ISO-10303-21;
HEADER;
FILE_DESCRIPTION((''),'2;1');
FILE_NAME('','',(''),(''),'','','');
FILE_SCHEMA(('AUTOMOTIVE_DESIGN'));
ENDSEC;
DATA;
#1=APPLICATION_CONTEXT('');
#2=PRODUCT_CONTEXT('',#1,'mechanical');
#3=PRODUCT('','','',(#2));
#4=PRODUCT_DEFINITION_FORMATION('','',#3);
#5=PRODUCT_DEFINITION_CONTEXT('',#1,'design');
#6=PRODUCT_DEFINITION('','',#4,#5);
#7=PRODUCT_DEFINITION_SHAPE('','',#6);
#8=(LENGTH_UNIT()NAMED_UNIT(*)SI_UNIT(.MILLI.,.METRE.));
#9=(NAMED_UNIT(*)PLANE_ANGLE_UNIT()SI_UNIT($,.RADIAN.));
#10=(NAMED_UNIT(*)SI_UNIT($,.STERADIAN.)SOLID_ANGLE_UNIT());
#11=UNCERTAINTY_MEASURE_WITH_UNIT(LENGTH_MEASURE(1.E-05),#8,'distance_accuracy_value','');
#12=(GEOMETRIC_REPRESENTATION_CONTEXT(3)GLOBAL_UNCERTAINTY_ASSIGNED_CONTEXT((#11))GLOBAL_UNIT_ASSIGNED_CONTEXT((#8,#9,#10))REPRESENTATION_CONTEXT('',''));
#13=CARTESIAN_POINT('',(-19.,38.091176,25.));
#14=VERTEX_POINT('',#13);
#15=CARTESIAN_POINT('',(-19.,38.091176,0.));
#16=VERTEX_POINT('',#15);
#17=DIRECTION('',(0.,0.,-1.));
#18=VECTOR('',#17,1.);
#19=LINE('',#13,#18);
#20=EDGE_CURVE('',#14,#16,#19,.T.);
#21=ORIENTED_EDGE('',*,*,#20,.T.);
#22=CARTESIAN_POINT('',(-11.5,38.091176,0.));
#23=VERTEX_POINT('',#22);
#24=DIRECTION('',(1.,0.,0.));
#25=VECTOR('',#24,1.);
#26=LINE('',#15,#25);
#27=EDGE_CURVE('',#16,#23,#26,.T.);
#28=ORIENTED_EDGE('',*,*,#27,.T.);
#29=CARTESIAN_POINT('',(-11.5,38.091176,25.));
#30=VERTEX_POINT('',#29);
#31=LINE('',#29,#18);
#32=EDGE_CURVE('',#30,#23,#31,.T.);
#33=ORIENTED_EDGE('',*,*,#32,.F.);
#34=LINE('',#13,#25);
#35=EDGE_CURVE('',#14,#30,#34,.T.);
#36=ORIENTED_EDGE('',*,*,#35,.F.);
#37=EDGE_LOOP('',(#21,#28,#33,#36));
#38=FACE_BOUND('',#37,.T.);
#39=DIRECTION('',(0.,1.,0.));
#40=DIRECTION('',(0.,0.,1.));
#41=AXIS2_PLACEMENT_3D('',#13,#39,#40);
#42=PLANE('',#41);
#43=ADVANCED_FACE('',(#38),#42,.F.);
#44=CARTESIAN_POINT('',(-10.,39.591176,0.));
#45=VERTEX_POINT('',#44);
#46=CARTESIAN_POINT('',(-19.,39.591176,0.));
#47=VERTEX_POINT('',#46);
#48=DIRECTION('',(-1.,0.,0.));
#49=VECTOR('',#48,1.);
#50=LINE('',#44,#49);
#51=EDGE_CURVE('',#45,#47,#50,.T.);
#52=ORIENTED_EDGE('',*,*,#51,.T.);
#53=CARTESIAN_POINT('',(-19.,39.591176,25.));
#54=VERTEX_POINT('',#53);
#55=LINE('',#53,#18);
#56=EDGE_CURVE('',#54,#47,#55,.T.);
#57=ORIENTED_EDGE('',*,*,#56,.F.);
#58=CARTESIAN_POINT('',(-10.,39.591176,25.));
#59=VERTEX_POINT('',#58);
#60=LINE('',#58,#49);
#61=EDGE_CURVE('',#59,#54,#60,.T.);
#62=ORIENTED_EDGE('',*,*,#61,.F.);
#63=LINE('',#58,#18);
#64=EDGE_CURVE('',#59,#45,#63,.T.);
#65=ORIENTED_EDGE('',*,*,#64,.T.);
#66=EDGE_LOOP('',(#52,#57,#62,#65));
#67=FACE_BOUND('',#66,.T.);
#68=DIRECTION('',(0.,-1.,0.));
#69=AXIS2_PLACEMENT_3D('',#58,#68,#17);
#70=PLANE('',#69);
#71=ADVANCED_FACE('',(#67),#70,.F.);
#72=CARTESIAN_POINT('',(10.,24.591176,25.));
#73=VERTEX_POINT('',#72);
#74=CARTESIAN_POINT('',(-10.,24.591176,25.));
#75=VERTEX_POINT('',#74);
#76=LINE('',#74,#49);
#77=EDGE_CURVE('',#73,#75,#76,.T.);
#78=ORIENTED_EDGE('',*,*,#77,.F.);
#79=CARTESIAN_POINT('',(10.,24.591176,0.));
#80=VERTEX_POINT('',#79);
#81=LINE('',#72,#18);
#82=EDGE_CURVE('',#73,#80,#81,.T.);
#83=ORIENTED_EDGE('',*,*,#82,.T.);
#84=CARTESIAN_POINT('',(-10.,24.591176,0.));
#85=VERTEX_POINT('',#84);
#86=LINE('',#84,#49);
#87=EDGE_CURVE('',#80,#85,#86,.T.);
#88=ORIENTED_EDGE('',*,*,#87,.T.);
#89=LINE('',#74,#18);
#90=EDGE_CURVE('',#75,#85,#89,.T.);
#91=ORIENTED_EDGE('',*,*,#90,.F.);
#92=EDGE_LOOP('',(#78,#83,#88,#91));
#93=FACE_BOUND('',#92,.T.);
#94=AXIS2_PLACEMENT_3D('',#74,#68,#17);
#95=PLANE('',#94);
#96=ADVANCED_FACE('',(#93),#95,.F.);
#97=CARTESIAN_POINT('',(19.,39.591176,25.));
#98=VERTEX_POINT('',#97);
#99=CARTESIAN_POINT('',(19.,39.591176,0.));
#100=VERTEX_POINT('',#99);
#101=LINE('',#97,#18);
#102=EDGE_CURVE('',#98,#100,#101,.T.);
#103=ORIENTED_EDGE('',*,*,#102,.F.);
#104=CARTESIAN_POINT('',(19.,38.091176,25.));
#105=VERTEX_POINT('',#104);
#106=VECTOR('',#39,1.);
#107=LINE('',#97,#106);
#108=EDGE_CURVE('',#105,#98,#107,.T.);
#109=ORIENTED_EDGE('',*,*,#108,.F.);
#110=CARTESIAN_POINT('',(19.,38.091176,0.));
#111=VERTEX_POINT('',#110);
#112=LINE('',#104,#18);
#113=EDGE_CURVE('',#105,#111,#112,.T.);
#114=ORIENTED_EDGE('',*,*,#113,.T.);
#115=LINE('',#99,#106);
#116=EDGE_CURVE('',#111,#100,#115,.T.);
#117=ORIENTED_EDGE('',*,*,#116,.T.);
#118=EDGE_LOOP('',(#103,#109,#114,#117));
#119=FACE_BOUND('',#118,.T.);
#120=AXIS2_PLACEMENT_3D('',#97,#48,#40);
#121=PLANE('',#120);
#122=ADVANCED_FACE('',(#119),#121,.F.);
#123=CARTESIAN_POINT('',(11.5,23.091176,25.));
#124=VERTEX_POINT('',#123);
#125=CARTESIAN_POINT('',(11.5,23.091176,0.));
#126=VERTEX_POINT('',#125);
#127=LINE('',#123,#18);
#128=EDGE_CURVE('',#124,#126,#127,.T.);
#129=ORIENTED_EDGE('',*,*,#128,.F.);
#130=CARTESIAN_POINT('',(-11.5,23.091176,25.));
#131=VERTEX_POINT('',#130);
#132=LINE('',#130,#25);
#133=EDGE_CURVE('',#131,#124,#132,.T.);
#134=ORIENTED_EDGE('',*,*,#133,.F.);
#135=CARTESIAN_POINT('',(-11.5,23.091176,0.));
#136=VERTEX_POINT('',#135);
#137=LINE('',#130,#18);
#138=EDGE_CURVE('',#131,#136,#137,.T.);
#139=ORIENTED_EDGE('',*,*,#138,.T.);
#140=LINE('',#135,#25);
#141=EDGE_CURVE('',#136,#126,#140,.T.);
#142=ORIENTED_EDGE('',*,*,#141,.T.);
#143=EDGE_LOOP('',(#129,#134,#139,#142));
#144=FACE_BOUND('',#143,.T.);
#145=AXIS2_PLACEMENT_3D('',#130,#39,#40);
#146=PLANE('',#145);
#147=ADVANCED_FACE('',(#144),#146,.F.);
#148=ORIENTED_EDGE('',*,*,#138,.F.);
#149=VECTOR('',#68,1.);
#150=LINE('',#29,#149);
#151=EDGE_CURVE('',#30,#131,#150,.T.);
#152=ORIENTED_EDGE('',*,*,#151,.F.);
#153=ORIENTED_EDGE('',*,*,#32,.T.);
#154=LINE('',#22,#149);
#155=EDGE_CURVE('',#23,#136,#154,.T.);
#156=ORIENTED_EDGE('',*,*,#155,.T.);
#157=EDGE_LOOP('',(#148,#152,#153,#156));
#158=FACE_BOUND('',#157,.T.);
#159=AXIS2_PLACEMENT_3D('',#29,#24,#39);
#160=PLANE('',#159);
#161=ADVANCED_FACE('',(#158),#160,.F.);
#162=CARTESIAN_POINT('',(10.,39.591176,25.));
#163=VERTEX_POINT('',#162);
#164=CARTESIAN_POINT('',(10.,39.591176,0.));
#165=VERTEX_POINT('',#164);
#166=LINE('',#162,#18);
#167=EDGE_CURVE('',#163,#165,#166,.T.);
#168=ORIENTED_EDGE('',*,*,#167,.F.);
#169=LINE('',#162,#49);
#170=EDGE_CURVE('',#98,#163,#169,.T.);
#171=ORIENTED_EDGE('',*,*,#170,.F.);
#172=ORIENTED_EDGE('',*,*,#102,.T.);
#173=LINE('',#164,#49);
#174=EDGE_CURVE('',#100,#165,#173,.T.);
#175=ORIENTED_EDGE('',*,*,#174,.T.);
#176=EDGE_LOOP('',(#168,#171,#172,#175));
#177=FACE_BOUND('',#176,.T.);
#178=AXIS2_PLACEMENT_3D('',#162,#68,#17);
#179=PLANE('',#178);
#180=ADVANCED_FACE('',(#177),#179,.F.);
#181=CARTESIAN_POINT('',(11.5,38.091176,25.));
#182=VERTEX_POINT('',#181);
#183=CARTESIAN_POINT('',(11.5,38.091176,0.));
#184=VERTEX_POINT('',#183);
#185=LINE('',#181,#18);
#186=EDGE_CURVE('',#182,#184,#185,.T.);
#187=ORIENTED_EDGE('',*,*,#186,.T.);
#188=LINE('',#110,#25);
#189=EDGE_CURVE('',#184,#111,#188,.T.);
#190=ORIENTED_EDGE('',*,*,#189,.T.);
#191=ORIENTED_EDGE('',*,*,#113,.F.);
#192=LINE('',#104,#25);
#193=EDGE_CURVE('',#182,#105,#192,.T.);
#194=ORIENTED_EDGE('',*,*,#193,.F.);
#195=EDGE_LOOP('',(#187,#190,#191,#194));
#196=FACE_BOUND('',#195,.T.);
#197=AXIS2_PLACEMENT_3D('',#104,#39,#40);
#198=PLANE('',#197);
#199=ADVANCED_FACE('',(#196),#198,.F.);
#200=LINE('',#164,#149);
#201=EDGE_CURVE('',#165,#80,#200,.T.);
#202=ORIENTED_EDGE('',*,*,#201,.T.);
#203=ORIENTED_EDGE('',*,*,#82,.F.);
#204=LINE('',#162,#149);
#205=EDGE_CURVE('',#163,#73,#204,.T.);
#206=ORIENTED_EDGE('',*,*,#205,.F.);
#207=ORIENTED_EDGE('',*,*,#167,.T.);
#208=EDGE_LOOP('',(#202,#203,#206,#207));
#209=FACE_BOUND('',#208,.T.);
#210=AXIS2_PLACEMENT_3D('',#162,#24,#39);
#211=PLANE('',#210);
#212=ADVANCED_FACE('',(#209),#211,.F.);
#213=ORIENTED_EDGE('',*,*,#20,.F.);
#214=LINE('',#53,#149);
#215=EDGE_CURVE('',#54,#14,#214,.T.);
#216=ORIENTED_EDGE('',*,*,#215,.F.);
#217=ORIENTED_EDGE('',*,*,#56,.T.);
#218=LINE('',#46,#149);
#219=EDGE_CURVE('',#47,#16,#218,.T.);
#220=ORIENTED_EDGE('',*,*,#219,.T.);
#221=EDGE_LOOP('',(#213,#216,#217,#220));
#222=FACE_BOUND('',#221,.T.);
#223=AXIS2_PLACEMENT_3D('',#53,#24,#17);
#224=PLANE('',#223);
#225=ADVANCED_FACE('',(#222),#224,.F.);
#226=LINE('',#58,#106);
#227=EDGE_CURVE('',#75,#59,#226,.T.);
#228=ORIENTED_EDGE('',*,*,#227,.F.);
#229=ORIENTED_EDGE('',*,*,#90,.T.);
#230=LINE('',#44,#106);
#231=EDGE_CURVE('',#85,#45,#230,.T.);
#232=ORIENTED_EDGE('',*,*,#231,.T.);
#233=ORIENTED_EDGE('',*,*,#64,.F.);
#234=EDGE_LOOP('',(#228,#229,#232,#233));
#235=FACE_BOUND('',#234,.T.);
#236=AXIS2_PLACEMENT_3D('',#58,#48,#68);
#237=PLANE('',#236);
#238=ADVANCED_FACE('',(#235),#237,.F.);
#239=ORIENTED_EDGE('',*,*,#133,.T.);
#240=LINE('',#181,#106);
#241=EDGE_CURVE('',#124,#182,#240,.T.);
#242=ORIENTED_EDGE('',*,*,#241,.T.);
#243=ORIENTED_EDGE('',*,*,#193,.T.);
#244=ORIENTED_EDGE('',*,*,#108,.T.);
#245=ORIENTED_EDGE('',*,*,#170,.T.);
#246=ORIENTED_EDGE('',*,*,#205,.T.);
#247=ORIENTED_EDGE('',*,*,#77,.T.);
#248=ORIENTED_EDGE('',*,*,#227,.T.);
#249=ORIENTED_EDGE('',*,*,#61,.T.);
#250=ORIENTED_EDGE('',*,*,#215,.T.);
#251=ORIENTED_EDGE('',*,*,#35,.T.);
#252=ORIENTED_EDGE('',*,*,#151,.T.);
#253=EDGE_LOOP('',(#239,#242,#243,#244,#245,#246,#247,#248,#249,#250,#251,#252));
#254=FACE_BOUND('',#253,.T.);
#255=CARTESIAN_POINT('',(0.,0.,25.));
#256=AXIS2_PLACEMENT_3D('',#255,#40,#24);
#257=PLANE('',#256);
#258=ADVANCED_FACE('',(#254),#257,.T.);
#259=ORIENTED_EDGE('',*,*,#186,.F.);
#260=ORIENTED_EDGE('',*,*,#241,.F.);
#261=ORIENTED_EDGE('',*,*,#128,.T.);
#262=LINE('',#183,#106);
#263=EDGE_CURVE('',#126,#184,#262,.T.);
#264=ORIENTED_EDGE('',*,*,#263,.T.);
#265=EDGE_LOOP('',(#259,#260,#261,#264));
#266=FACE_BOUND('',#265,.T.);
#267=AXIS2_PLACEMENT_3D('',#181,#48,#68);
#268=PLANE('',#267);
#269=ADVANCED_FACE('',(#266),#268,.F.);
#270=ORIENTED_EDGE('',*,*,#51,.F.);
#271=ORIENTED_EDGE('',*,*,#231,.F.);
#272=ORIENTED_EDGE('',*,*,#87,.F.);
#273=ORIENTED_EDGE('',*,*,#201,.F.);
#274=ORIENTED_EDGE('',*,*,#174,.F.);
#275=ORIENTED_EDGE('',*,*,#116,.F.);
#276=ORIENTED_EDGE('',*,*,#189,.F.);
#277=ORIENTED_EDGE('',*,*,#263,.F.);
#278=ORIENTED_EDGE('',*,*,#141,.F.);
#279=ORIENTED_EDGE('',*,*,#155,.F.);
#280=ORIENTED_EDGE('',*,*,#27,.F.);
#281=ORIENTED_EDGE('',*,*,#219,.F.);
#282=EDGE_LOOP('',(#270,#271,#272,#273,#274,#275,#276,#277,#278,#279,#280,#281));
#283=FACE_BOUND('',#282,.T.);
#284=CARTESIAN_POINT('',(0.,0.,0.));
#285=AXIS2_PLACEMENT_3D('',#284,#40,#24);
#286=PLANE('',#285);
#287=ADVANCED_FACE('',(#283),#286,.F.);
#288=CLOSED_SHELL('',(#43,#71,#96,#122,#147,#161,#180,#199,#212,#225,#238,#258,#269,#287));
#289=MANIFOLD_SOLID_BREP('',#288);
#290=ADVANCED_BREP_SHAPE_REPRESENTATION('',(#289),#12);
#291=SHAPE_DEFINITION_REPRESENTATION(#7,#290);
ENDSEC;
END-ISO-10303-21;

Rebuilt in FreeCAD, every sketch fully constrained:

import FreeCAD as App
import Part
import Sketcher

V = App.Vector
Q = App.Units.Quantity

doc = App.newDocument("Part")
body = doc.addObject("PartDesign::Body", "Body")

# Sketch on XY plane
sketch1 = doc.addObject("Sketcher::SketchObject", "Sketch")
body.addObject(sketch1)
sketch1.AttachmentSupport = (doc.XY_Plane, [""])
sketch1.MapMode = "FlatFace"
sketch1.addGeometry(Part.LineSegment(V(11.5, 23.1, 0), V(11.5, 38.1, 0)), False)
sketch1.addGeometry(Part.LineSegment(V(11.5, 38.1, 0), V(19, 38.1, 0)), False)
sketch1.addGeometry(Part.LineSegment(V(19, 38.1, 0), V(19, 39.6, 0)), False)
sketch1.addGeometry(Part.LineSegment(V(19, 39.6, 0), V(10, 39.6, 0)), False)
sketch1.addGeometry(Part.LineSegment(V(10, 39.6, 0), V(10, 24.6, 0)), False)
sketch1.addGeometry(Part.LineSegment(V(10, 24.6, 0), V(-10, 24.6, 0)), False)
sketch1.addGeometry(Part.LineSegment(V(-10, 24.6, 0), V(-10, 39.6, 0)), False)
sketch1.addGeometry(Part.LineSegment(V(-10, 39.6, 0), V(-19, 39.6, 0)), False)
sketch1.addGeometry(Part.LineSegment(V(-19, 39.6, 0), V(-19, 38.1, 0)), False)
sketch1.addGeometry(Part.LineSegment(V(-19, 38.1, 0), V(-11.5, 38.1, 0)), False)
sketch1.addGeometry(Part.LineSegment(V(-11.5, 38.1, 0), V(-11.5, 23.1, 0)), False)
sketch1.addGeometry(Part.LineSegment(V(-11.5, 23.1, 0), V(11.5, 23.1, 0)), False)
sketch1.addConstraint(Sketcher.Constraint("Coincident", 0, 2, 1, 1))
sketch1.addConstraint(Sketcher.Constraint("Coincident", 1, 2, 2, 1))
sketch1.addConstraint(Sketcher.Constraint("Coincident", 2, 2, 3, 1))
sketch1.addConstraint(Sketcher.Constraint("Coincident", 3, 2, 4, 1))
sketch1.addConstraint(Sketcher.Constraint("Coincident", 4, 2, 5, 1))
sketch1.addConstraint(Sketcher.Constraint("Coincident", 5, 2, 6, 1))
sketch1.addConstraint(Sketcher.Constraint("Coincident", 6, 2, 7, 1))
sketch1.addConstraint(Sketcher.Constraint("Coincident", 7, 2, 8, 1))
sketch1.addConstraint(Sketcher.Constraint("Coincident", 8, 2, 9, 1))
sketch1.addConstraint(Sketcher.Constraint("Coincident", 9, 2, 10, 1))
sketch1.addConstraint(Sketcher.Constraint("Coincident", 10, 2, 11, 1))
sketch1.addConstraint(Sketcher.Constraint("Coincident", 11, 2, 0, 1))
sketch1.addConstraint(Sketcher.Constraint("Vertical", 0))
sketch1.addConstraint(Sketcher.Constraint("Horizontal", 1))
sketch1.addConstraint(Sketcher.Constraint("Vertical", 2))
sketch1.addConstraint(Sketcher.Constraint("Horizontal", 3))
sketch1.addConstraint(Sketcher.Constraint("Vertical", 4))
sketch1.addConstraint(Sketcher.Constraint("Horizontal", 5))
sketch1.addConstraint(Sketcher.Constraint("Vertical", 6))
sketch1.addConstraint(Sketcher.Constraint("Horizontal", 7))
sketch1.addConstraint(Sketcher.Constraint("Vertical", 8))
sketch1.addConstraint(Sketcher.Constraint("Horizontal", 9))
sketch1.addConstraint(Sketcher.Constraint("Vertical", 10))
sketch1.addConstraint(Sketcher.Constraint("Horizontal", 11))
sketch1.addConstraint(Sketcher.Constraint("Symmetric", 3, 2, 6, 2, -2))
sketch1.addConstraint(Sketcher.Constraint("Symmetric", 1, 2, 8, 2, -2))
sketch1.addConstraint(Sketcher.Constraint("Equal", 1, 9))
sketch1.addConstraint(Sketcher.Constraint("Equal", 0, 4))
sketch1.addConstraint(Sketcher.Constraint("DistanceX", 3, 2, 3, 1, Q("9 mm")))
sketch1.addConstraint(Sketcher.Constraint("DistanceX", 5, 2, 5, 1, Q("20 mm")))
sketch1.addConstraint(Sketcher.Constraint("DistanceX", 11, 1, 11, 2, Q("23 mm")))
sketch1.addConstraint(Sketcher.Constraint("DistanceY", 0, 1, 0, 2, Q("15 mm")))
sketch1.addConstraint(Sketcher.Constraint("DistanceY", 2, 1, 2, 2, Q("1.5 mm")))
sketch1.addConstraint(Sketcher.Constraint("DistanceY", -1, 1, 0, 2, Q("38.091176 mm")))
pad1 = doc.addObject("PartDesign::Pad", "Pad")
body.addObject(pad1)
pad1.Profile = sketch1
pad1.Length = 25

doc.recompute()
